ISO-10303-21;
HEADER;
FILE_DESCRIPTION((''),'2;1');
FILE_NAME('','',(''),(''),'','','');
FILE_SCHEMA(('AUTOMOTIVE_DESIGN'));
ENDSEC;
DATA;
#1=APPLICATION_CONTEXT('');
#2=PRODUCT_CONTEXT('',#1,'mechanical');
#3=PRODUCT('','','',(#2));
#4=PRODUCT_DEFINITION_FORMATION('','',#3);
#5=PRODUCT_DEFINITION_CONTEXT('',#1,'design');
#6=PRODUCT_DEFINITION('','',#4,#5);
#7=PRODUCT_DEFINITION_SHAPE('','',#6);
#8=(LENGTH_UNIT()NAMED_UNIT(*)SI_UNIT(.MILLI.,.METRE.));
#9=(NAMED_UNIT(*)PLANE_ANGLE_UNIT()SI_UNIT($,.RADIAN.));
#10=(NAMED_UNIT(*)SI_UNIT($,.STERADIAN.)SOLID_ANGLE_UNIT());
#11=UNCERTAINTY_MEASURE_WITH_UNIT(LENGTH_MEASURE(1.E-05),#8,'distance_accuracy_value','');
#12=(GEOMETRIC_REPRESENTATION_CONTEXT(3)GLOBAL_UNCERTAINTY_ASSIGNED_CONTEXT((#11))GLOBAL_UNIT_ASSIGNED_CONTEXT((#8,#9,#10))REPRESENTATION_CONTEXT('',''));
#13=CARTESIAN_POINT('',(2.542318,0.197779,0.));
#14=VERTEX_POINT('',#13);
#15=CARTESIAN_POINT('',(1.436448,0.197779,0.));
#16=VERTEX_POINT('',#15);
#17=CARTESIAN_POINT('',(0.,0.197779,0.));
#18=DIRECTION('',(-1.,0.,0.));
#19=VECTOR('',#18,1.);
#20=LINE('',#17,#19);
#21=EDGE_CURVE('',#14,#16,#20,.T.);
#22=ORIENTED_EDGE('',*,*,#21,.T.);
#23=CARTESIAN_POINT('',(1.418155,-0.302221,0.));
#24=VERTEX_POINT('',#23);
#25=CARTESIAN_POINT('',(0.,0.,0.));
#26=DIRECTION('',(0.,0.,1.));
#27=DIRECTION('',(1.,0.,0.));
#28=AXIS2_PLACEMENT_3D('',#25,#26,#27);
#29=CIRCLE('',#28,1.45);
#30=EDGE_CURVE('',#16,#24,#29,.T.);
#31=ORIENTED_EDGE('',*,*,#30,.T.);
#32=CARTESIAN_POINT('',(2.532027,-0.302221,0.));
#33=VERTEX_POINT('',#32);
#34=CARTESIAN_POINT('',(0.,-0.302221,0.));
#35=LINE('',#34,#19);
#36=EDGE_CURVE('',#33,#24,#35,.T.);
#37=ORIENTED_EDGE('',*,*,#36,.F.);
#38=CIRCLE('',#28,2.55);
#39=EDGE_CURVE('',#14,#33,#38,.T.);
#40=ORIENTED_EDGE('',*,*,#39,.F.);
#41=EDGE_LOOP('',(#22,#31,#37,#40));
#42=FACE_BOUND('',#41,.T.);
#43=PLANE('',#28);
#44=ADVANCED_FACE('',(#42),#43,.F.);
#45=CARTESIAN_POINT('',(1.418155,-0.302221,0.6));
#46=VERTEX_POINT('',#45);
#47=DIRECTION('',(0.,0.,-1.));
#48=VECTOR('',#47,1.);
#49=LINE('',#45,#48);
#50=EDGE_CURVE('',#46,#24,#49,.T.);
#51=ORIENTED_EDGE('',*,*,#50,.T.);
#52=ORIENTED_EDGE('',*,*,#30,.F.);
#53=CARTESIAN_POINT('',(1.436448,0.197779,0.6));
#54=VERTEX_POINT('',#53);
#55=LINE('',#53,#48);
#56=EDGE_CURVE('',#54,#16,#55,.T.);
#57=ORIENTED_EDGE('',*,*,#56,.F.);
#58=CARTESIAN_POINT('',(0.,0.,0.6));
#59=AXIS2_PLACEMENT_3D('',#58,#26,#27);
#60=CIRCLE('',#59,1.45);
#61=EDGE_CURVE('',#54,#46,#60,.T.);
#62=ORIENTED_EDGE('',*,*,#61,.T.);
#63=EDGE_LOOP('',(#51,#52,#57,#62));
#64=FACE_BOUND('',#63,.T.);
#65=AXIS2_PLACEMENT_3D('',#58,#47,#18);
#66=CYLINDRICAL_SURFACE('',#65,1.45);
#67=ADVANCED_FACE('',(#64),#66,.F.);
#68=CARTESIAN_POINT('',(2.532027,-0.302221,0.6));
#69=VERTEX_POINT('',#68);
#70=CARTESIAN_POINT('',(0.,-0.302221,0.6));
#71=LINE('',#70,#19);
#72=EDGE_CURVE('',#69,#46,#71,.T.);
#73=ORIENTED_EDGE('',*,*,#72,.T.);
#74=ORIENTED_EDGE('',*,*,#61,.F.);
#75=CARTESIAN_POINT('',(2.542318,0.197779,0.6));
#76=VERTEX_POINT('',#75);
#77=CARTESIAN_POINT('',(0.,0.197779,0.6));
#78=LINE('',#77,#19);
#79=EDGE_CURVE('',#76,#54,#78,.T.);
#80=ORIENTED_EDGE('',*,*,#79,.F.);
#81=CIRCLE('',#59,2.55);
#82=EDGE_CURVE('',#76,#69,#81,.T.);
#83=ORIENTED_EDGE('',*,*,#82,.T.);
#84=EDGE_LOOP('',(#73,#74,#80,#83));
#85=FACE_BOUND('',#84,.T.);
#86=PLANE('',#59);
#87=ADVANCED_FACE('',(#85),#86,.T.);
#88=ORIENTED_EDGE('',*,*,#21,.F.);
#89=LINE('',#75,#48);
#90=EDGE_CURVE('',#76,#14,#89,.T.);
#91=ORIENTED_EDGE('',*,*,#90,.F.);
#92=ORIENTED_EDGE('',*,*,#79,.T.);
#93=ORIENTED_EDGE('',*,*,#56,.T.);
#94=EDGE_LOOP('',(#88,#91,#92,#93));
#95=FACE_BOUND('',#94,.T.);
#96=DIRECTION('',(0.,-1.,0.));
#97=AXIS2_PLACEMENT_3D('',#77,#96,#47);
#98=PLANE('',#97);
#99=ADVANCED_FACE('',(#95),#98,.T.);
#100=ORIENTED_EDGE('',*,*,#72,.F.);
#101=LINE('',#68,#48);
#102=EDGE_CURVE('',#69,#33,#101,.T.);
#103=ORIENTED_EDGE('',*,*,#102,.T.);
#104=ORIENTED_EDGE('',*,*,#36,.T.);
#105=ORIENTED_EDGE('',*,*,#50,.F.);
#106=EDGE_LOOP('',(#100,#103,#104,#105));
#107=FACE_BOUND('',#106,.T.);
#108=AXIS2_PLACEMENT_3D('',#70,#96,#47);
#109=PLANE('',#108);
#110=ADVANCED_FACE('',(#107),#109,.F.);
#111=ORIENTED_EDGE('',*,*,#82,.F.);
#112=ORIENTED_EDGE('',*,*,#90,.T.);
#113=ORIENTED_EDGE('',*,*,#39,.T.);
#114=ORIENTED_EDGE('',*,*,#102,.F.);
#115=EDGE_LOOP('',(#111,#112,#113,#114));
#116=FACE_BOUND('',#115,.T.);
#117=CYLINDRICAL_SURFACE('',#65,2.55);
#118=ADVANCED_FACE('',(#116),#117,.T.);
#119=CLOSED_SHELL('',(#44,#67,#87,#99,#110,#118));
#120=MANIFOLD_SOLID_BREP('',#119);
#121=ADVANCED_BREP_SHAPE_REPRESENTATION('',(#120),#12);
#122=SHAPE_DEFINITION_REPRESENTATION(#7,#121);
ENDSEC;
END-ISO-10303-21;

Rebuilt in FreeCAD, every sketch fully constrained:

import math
import FreeCAD as App
import Part
import Sketcher

V = App.Vector

doc = App.newDocument("Part")
body = doc.addObject("PartDesign::Body", "Body")

# Sketch on XY plane
sketch1 = doc.addObject("Sketcher::SketchObject", "Sketch")
body.addObject(sketch1)
sketch1.AttachmentSupport = (doc.XY_Plane, [""])
sketch1.MapMode = "FlatFace"
sketch1.addGeometry([
    Part.ArcOfCircle(Part.Circle(V(0, 0, 0), V(0, 0, 1), 2.5), math.radians(4), math.radians(353)),
    Part.LineSegment(V(2.5, -0.3, 0), V(1.4, -0.3, 0)),
    Part.ArcOfCircle(Part.Circle(V(0, 0, 0), V(0, 0, 1), 1.4), math.radians(8), math.radians(348)),
    Part.LineSegment(V(1.4, 0.2, 0), V(2.5, 0.2, 0)),
], False)
sketch1.addConstraint([
    Sketcher.Constraint("Coincident", 0, 2, 1, 1),
    Sketcher.Constraint("Coincident", 1, 2, 2, 2),
    Sketcher.Constraint("Coincident", 2, 1, 3, 1),
    Sketcher.Constraint("Coincident", 3, 2, 0, 1),
    Sketcher.Constraint("Horizontal", 1),
    Sketcher.Constraint("Horizontal", 3),
    Sketcher.Constraint("Coincident", 0, 3, -1, 1),
    Sketcher.Constraint("Coincident", 2, 3, -1, 1),
    Sketcher.Constraint("Radius", 0, 2.55),
    Sketcher.Constraint("Radius", 2, 1.45),
    Sketcher.Constraint("DistanceY", 1, 2, 2, 1, 0.5),
    Sketcher.Constraint("DistanceX", 3, 1, 3, 2, 1.10587),
])
pad1 = doc.addObject("PartDesign::Pad", "Pad")
body.addObject(pad1)
pad1.Profile = sketch1
pad1.Length = 0.6

doc.recompute()
